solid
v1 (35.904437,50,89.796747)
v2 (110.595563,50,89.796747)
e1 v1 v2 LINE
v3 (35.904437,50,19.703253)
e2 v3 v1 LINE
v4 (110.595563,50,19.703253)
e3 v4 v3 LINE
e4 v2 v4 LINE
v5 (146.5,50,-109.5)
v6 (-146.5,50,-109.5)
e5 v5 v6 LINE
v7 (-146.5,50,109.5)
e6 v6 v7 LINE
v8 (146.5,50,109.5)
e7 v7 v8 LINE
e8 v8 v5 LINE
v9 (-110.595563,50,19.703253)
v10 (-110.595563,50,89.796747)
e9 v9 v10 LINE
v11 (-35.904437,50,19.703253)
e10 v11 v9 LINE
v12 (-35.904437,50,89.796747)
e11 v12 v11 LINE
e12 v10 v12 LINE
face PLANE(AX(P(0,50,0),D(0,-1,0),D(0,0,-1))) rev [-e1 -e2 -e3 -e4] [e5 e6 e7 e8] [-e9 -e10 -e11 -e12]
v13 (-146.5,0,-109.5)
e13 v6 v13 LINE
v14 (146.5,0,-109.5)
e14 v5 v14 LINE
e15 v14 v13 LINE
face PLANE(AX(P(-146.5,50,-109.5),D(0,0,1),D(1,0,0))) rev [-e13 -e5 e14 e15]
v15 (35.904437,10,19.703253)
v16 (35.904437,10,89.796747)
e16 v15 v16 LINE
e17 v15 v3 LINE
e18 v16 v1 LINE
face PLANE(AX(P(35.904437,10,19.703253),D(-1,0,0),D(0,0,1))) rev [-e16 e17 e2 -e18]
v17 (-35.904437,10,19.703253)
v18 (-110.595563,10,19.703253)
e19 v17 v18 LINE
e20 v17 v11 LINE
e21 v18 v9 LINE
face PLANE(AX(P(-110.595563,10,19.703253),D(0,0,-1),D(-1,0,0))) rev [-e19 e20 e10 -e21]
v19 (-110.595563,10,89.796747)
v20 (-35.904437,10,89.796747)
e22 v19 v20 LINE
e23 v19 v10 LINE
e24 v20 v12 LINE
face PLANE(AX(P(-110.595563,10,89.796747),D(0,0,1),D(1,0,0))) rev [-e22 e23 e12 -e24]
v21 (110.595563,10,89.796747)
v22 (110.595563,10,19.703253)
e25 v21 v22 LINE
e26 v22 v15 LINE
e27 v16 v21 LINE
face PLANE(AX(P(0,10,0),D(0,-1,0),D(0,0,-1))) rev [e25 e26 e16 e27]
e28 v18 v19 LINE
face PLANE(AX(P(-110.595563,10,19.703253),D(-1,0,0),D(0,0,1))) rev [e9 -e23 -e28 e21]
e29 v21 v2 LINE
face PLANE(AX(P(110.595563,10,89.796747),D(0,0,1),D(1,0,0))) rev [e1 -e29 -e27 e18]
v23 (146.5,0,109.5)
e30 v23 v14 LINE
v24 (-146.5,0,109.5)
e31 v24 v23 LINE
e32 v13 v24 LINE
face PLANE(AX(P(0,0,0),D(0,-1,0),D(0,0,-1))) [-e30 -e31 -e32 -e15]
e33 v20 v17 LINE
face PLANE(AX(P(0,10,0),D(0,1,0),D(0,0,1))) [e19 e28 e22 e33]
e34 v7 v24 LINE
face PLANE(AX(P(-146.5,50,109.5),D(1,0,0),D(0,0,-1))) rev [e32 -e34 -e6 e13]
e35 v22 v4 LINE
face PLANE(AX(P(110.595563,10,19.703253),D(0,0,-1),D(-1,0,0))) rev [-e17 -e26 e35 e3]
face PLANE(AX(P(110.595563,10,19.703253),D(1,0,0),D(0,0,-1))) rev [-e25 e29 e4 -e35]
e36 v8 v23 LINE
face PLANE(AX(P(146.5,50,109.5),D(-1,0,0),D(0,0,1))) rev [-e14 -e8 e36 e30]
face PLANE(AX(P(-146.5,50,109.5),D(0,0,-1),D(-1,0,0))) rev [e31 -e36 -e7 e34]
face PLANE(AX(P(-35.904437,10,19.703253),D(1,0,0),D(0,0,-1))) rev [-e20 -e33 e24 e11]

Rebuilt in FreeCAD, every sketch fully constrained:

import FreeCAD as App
import Part
import Sketcher

V = App.Vector


def add_polygon(sketch, points):
    """Adds a closed chain of lines whose ends are joined by coincident constraints."""
    first, n = sketch.GeometryCount, len(points)
    for a, b in zip(points, points[1:] + points[:1]):
        sketch.addGeometry(Part.LineSegment(App.Vector(*a, 0), App.Vector(*b, 0)), False)
    for i in range(n):
        sketch.addConstraint(Sketcher.Constraint("Coincident", first + i, 2, first + (i + 1) % n, 1))

doc = App.newDocument("Part")
body = doc.addObject("PartDesign::Body", "Body")

sketch1 = body.newObject("Sketcher::SketchObject", "Sketch")
sketch1.AttachmentSupport = (doc.getObject("XZ_Plane"), [""])
sketch1.MapMode = "FlatFace"
add_polygon(sketch1, [(-146, -110), (-146, 110), (146, 110), (146, -110)])
sketch1.addConstraint([
    Sketcher.Constraint("Vertical", 0),
    Sketcher.Constraint("Horizontal", 1),
    Sketcher.Constraint("Vertical", 2),
    Sketcher.Constraint("Horizontal", 3),
    Sketcher.Constraint("Symmetric", 0, 2, 2, 2, -1, 1),
    Sketcher.Constraint("DistanceX", 1, 1, 1, 2, 293.0),
    Sketcher.Constraint("DistanceY", 0, 1, 0, 2, 219.0),
])
pad1 = body.newObject("PartDesign::Pad", "Pad")
pad1.Profile = sketch1
pad1.Length = 50
pad1.Reversed = True

sketch2 = body.newObject("Sketcher::SketchObject", "Sketch001")
sketch2.AttachmentSupport = (doc.getObject("XZ_Plane"), [""])
sketch2.MapMode = "FlatFace"
sketch2.AttachmentOffset = App.Placement(V(0, 0, -50), App.Rotation())
add_polygon(sketch2, [(36, 20), (36, 90), (111, 90), (111, 20)])
add_polygon(sketch2, [(-111, 20), (-111, 90), (-36, 90), (-36, 20)])
sketch2.addConstraint([
    Sketcher.Constraint("Vertical", 0),
    Sketcher.Constraint("Horizontal", 1),
    Sketcher.Constraint("Vertical", 2),
    Sketcher.Constraint("Horizontal", 3),
    Sketcher.Constraint("Vertical", 4),
    Sketcher.Constraint("Horizontal", 5),
    Sketcher.Constraint("Vertical", 6),
    Sketcher.Constraint("Horizontal", 7),
    Sketcher.Constraint("Symmetric", 1, 2, 4, 2, -2),
    Sketcher.Constraint("Symmetric", 3, 2, 6, 2, -2),
    Sketcher.Constraint("DistanceX", 4, 2, 0, 2, 146.5),
    Sketcher.Constraint("DistanceX", 1, 1, 1, 2, 74.691126),
    Sketcher.Constraint("DistanceY", 0, 1, 0, 2, 70.093493),
    Sketcher.Constraint("DistanceY", -1, 1, 0, 2, 89.796747),
])
pocket1 = body.newObject("PartDesign::Pocket", "Pocket")
pocket1.Profile = sketch2
pocket1.Length = 40
pocket1.Reversed = True

doc.recompute()
